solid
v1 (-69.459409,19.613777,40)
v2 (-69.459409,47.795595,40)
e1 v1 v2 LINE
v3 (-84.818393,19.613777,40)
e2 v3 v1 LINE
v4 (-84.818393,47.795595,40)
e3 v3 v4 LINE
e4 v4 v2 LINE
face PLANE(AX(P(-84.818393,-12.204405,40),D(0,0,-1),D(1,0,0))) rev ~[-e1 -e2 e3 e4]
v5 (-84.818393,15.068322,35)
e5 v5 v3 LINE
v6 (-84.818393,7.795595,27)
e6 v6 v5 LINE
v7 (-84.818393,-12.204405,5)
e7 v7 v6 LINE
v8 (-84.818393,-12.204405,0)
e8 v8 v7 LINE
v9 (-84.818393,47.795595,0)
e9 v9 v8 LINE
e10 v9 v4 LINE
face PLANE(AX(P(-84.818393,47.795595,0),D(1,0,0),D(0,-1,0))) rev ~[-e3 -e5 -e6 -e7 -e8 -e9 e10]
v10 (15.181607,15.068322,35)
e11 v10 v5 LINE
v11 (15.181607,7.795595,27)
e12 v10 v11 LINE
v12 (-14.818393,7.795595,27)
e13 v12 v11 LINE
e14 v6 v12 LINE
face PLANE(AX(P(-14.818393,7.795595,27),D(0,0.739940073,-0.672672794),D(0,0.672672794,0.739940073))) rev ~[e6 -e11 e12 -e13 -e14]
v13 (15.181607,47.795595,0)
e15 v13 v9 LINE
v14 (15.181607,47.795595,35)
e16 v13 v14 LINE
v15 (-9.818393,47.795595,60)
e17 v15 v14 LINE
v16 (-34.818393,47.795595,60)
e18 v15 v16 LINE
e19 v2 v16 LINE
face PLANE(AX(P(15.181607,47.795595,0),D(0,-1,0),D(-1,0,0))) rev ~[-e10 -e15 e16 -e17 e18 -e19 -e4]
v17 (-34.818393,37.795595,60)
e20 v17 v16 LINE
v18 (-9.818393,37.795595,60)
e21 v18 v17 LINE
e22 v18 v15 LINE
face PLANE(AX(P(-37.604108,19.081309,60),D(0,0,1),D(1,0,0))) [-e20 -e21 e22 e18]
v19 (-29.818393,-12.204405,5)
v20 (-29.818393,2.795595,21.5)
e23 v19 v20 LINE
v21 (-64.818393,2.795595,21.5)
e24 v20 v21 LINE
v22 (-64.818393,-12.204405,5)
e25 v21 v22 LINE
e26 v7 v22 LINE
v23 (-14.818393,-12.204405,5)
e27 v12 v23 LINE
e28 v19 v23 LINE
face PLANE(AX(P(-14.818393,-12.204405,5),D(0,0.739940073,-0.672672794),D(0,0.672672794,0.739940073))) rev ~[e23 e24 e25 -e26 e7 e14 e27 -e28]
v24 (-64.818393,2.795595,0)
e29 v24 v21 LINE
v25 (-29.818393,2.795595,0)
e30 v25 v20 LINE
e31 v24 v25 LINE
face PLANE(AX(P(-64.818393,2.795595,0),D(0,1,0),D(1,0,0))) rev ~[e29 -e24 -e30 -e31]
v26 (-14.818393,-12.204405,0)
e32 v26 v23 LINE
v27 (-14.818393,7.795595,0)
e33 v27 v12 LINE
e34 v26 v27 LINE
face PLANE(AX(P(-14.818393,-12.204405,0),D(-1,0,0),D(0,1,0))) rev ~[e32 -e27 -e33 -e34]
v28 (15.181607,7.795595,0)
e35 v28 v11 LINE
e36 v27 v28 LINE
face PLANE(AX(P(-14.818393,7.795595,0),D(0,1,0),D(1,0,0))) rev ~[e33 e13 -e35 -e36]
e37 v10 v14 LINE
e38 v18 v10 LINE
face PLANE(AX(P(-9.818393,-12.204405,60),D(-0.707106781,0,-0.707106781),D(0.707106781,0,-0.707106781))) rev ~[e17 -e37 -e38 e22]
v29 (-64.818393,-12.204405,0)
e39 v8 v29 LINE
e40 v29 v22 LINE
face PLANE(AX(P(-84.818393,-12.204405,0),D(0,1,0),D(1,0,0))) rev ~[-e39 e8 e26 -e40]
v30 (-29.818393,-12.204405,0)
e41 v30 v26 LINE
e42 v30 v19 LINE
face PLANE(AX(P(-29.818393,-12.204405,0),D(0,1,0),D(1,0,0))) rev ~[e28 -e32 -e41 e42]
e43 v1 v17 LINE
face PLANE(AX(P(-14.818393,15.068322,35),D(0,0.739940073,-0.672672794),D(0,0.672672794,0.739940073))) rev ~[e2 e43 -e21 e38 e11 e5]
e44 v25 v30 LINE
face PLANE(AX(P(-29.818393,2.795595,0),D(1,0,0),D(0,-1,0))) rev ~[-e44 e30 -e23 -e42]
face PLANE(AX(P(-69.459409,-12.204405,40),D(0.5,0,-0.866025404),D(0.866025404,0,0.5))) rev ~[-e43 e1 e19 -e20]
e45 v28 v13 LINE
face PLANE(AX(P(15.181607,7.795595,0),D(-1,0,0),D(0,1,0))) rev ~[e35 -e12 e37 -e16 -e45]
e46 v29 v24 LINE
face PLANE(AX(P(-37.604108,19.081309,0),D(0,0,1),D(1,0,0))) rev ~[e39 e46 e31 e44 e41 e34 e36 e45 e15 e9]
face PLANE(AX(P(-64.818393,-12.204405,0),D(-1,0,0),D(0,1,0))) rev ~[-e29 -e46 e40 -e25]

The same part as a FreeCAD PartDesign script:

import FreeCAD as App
import Part
import Sketcher
Q = App.Units.Quantity

doc = App.newDocument("Part")
params = doc.addObject("Spreadsheet::Sheet", "Params")
for row, (alias, value) in enumerate([
    ("sketch1_width", "100 mm"),
    ("sketch1_width2", "20 mm"),
    ("sketch1_width3", "35 mm"),
    ("sketch1_width4", "15 mm"),
    ("sketch1_height", "60 mm"),
    ("pad1_length", "60 mm"),
    ("sketch2_width", "50 mm"),
    ("sketch2_width2", "25 mm"),
    ("sketch2_height", "20 mm"),
    ("sketch3_width", "50 mm"),
    ("sketch3_height", "55 mm"),
    ("pocket2_length", "159.4 mm"),
], start=1):
    params.set(f"A{row}", alias)
    params.set(f"B{row}", "=" + value)
    params.setAlias(f"B{row}", alias)

body = doc.addObject("PartDesign::Body", "Body")

# Sketch on XY plane
sketch1 = doc.addObject("Sketcher::SketchObject", "Sketch")
body.addObject(sketch1)
sketch1.AttachmentSupport = (doc.XY_Plane, [""])
sketch1.MapMode = "FlatFace"
sketch1.addGeometry([
    Part.LineSegment(App.Vector(15.181607, 47.795595, 0), App.Vector(-84.818393, 47.795595, 0)),  # 0
    Part.LineSegment(App.Vector(-84.818393, 47.795595, 0), App.Vector(-84.818393, -12.204405, 0)),  # 1
    Part.LineSegment(App.Vector(-84.818393, -12.204405, 0), App.Vector(-64.818393, -12.204405, 0)),  # 2
    Part.LineSegment(App.Vector(-64.818393, -12.204405, 0), App.Vector(-64.818393, 2.795595, 0)),  # 3
    Part.LineSegment(App.Vector(-64.818393, 2.795595, 0), App.Vector(-29.818393, 2.795595, 0)),  # 4
    Part.LineSegment(App.Vector(-29.818393, 2.795595, 0), App.Vector(-29.818393, -12.204405, 0)),  # 5
    Part.LineSegment(App.Vector(-29.818393, -12.204405, 0), App.Vector(-14.818393, -12.204405, 0)),  # 6
    Part.LineSegment(App.Vector(-14.818393, -12.204405, 0), App.Vector(-14.818393, 7.795595, 0)),  # 7
    Part.LineSegment(App.Vector(-14.818393, 7.795595, 0), App.Vector(15.181607, 7.795595, 0)),  # 8
    Part.LineSegment(App.Vector(15.181607, 7.795595, 0), App.Vector(15.181607, 47.795595, 0)),  # 9
], False)
sketch1.addConstraint([
    Sketcher.Constraint("Coincident", 0, 2, 1, 1),
    Sketcher.Constraint("Coincident", 1, 2, 2, 1),
    Sketcher.Constraint("Coincident", 2, 2, 3, 1),
    Sketcher.Constraint("Coincident", 3, 2, 4, 1),
    Sketcher.Constraint("Coincident", 4, 2, 5, 1),
    Sketcher.Constraint("Coincident", 5, 2, 6, 1),
    Sketcher.Constraint("Coincident", 6, 2, 7, 1),
    Sketcher.Constraint("Coincident", 7, 2, 8, 1),
    Sketcher.Constraint("Coincident", 8, 2, 9, 1),
    Sketcher.Constraint("Coincident", 9, 2, 0, 1),
    Sketcher.Constraint("Horizontal", 0),
    Sketcher.Constraint("Vertical", 1),
    Sketcher.Constraint("Horizontal", 2),
    Sketcher.Constraint("Vertical", 3),
    Sketcher.Constraint("Horizontal", 4),
    Sketcher.Constraint("Vertical", 5),
    Sketcher.Constraint("Horizontal", 6),
    Sketcher.Constraint("Vertical", 7),
    Sketcher.Constraint("Horizontal", 8),
    Sketcher.Constraint("Vertical", 9),
    Sketcher.Constraint("Horizontal", 2, 2, 5, 2),
    Sketcher.Constraint("Equal", 6, 3),
    Sketcher.Constraint("Equal", 2, 7),
    Sketcher.Constraint("DistanceX", 0, 2, 0, 1, Q("100 mm")),
    Sketcher.Constraint("DistanceX", 2, 1, 2, 2, Q("20 mm")),
    Sketcher.Constraint("DistanceX", 4, 1, 4, 2, Q("35 mm")),
    Sketcher.Constraint("DistanceX", 6, 1, 6, 2, Q("15 mm")),
    Sketcher.Constraint("DistanceY", 1, 2, 1, 1, Q("60 mm")),
    Sketcher.Constraint("DistanceX", 0, 2, -1, 1, Q("84.818393 mm")),
    Sketcher.Constraint("DistanceY", -1, 1, 0, 2, Q("47.795595 mm")),
])
sketch1.setExpression("Constraints[23]", "Params.sketch1_width")
sketch1.setExpression("Constraints[24]", "Params.sketch1_width2")
sketch1.setExpression("Constraints[25]", "Params.sketch1_width3")
sketch1.setExpression("Constraints[26]", "Params.sketch1_width4")
sketch1.setExpression("Constraints[27]", "Params.sketch1_height")
pad1 = doc.addObject("PartDesign::Pad", "Pad")
body.addObject(pad1)
pad1.Profile = sketch1
pad1.setExpression("Length", "Params.pad1_length")

# Sketch on XZ plane
sketch2 = doc.addObject("Sketcher::SketchObject", "Sketch001")
body.addObject(sketch2)
sketch2.AttachmentSupport = (doc.XZ_Plane, [""])
sketch2.MapMode = "FlatFace"
sketch2.AttachmentOffset = App.Placement(App.Vector(0, 0, 12.204405), App.Rotation())
sketch2.addGeometry([
    Part.LineSegment(App.Vector(-69.459409, 40, 0), App.Vector(-34.818393, 60, 0)),  # 0
    Part.LineSegment(App.Vector(-34.818393, 60, 0), App.Vector(-84.818393, 60, 0)),  # 1
    Part.LineSegment(App.Vector(-84.818393, 60, 0), App.Vector(-84.818393, 40, 0)),  # 2
    Part.LineSegment(App.Vector(-84.818393, 40, 0), App.Vector(-69.459409, 40, 0)),  # 3
    Part.LineSegment(App.Vector(15.181607, 60, 0), App.Vector(-9.818393, 60, 0)),  # 4
    Part.LineSegment(App.Vector(-9.818393, 60, 0), App.Vector(15.181607, 35, 0)),  # 5
    Part.LineSegment(App.Vector(15.181607, 35, 0), App.Vector(15.181607, 60, 0)),  # 6
], False)
sketch2.addConstraint([
    Sketcher.Constraint("Coincident", 0, 2, 1, 1),
    Sketcher.Constraint("Coincident", 1, 2, 2, 1),
    Sketcher.Constraint("Coincident", 2, 2, 3, 1),
    Sketcher.Constraint("Coincident", 3, 2, 0, 1),
    Sketcher.Constraint("Coincident", 4, 2, 5, 1),
    Sketcher.Constraint("Coincident", 5, 2, 6, 1),
    Sketcher.Constraint("Coincident", 6, 2, 4, 1),
    Sketcher.Constraint("Horizontal", 1),
    Sketcher.Constraint("Vertical", 2),
    Sketcher.Constraint("Horizontal", 3),
    Sketcher.Constraint("Horizontal", 4),
    Sketcher.Constraint("Vertical", 6),
    Sketcher.Constraint("Horizontal", 1, 2, 4, 2),
    Sketcher.Constraint("Equal", 4, 6),
    Sketcher.Constraint("DistanceX", 1, 2, 1, 1, Q("50 mm")),
    Sketcher.Constraint("DistanceX", 4, 2, 4, 1, Q("25 mm")),
    Sketcher.Constraint("DistanceY", 2, 2, 2, 1, Q("20 mm")),
    Sketcher.Constraint("Angle", 0, Q("30 deg")),
    Sketcher.Constraint("DistanceY", -1, 1, 0, 2, Q("60 mm")),
    Sketcher.Constraint("DistanceX", 0, 2, 4, 2, Q("25 mm")),
    Sketcher.Constraint("DistanceX", 3, 2, -1, 1, Q("69.459409 mm")),
])
sketch2.setExpression("Constraints[14]", "Params.sketch2_width")
sketch2.setExpression("Constraints[15]", "Params.sketch2_width2")
sketch2.setExpression("Constraints[16]", "Params.sketch2_height")
pocket1 = doc.addObject("PartDesign::Pocket", "Pocket")
body.addObject(pocket1)
pocket1.Profile = sketch2
pocket1.Type = "ThroughAll"

# Sketch on YZ plane
sketch3 = doc.addObject("Sketcher::SketchObject", "Sketch002")
body.addObject(sketch3)
sketch3.AttachmentSupport = (doc.YZ_Plane, [""])
sketch3.MapMode = "FlatFace"
sketch3.AttachmentOffset = App.Placement(App.Vector(0, 0, -14.818393), App.Rotation())
sketch3.addGeometry([
    Part.LineSegment(App.Vector(-12.204405, 60, 0), App.Vector(-12.204405, 5, 0)),  # 0
    Part.LineSegment(App.Vector(-12.204405, 5, 0), App.Vector(7.795595, 27, 0)),  # 1
    Part.LineSegment(App.Vector(7.795595, 27, 0), App.Vector(15.068322, 35, 0)),  # 2
    Part.LineSegment(App.Vector(15.068322, 35, 0), App.Vector(37.795595, 60, 0)),  # 3
    Part.LineSegment(App.Vector(37.795595, 60, 0), App.Vector(-12.204405, 60, 0)),  # 4
], False)
sketch3.addConstraint([
    Sketcher.Constraint("Coincident", 0, 2, 1, 1),
    Sketcher.Constraint("Coincident", 1, 2, 2, 1),
    Sketcher.Constraint("Coincident", 2, 2, 3, 1),
    Sketcher.Constraint("Coincident", 3, 2, 4, 1),
    Sketcher.Constraint("Coincident", 4, 2, 0, 1),
    Sketcher.Constraint("Vertical", 0),
    Sketcher.Constraint("Horizontal", 4),
    Sketcher.Constraint("Parallel", 1, 2),
    Sketcher.Constraint("Parallel", 2, 3),
    Sketcher.Constraint("DistanceX", 4, 2, 4, 1, Q("50 mm")),
    Sketcher.Constraint("DistanceY", 0, 2, 0, 1, Q("55 mm")),
    Sketcher.Constraint("DistanceY", -1, 1, 0, 2, Q("5 mm")),
    Sketcher.Constraint("DistanceY", -1, 1, 1, 2, Q("27 mm")),
    Sketcher.Constraint("DistanceY", -1, 1, 2, 2, Q("35 mm")),
    Sketcher.Constraint("DistanceX", 0, 2, -1, 1, Q("12.204405 mm")),
])
sketch3.setExpression("Constraints[9]", "Params.sketch3_width")
sketch3.setExpression("Constraints[10]", "Params.sketch3_height")
pocket2 = doc.addObject("PartDesign::Pocket", "Pocket001")
body.addObject(pocket2)
pocket2.Profile = sketch3
pocket2.setExpression("Length", "Params.pocket2_length")
pocket2.Midplane = True

doc.recompute()
